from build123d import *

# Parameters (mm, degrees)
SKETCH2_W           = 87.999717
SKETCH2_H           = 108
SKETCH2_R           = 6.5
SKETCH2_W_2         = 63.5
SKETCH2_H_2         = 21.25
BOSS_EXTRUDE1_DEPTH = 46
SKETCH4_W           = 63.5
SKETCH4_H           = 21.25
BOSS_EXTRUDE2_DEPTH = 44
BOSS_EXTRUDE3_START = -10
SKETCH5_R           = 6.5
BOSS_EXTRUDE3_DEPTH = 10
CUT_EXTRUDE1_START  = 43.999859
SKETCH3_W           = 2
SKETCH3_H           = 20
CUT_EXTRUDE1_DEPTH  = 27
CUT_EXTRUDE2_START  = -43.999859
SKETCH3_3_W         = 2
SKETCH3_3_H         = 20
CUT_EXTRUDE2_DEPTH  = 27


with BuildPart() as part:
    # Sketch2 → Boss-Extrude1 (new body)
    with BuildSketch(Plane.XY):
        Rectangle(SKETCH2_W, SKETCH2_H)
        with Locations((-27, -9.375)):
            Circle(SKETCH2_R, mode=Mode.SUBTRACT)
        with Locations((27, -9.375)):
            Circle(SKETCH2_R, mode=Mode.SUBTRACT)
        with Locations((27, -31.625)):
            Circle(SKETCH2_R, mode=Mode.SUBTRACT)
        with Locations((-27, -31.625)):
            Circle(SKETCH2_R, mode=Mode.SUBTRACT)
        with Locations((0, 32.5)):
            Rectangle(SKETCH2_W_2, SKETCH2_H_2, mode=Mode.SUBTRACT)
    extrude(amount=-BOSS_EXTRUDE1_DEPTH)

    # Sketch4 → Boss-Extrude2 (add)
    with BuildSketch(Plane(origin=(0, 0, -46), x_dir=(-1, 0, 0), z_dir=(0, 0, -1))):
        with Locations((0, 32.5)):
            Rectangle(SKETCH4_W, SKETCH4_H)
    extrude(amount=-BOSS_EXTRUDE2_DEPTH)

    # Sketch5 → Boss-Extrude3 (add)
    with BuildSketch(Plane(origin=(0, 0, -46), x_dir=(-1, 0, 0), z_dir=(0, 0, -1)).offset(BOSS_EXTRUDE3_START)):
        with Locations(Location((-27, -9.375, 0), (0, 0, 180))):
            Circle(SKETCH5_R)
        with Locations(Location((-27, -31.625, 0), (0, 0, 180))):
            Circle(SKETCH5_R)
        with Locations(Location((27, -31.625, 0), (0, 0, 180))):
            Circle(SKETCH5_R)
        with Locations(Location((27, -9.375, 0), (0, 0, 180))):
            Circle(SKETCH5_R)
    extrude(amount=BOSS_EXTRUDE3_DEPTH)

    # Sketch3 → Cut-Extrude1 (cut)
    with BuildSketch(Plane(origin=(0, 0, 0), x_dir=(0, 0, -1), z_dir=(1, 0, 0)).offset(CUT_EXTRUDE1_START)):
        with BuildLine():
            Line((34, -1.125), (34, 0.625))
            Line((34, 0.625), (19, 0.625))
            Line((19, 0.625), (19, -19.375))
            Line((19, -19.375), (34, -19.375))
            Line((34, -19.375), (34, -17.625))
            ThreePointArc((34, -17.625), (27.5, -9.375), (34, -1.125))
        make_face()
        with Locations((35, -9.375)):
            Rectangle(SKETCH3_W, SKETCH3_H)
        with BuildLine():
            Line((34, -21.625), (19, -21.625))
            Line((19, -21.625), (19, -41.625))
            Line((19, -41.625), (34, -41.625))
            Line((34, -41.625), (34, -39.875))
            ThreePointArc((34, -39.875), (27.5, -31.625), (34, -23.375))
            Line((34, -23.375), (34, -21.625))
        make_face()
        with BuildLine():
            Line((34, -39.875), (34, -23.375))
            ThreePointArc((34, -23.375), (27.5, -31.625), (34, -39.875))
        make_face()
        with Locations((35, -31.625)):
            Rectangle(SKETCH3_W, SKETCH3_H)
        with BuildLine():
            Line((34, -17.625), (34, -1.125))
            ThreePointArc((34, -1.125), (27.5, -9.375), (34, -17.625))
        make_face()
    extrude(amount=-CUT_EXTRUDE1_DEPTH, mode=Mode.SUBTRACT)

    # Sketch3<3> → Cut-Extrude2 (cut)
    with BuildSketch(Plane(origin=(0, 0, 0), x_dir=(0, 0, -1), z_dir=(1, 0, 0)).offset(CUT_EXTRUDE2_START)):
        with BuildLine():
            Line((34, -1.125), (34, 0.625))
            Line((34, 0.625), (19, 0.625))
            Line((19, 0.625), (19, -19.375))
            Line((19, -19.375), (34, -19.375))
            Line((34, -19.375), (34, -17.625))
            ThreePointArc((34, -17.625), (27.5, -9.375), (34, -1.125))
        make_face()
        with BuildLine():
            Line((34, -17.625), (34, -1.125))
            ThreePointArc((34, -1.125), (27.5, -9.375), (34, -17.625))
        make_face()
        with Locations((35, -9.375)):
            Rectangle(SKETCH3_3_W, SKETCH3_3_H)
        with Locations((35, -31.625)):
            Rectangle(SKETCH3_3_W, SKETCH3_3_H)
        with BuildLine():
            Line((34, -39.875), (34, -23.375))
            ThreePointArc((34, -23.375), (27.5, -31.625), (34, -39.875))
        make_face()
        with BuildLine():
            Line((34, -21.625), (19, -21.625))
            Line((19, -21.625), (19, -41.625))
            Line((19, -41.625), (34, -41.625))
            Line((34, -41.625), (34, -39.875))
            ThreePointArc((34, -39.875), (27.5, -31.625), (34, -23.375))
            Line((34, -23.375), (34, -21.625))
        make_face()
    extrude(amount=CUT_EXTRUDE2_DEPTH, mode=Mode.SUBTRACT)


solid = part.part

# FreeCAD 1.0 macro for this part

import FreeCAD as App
import Part
import Sketcher

doc = App.newDocument("Part")
body = doc.addObject("PartDesign::Body", "Body")

# Sketch on XY plane
sketch1 = body.newObject("Sketcher::SketchObject", "Sketch")
sketch1.AttachmentSupport = (doc.getObject("XY_Plane"), [""])
sketch1.MapMode = "FlatFace"
sketch1.addGeometry([
    Part.LineSegment(App.Vector(-44, 54, 0), App.Vector(-44, -54, 0)),  # 0
    Part.LineSegment(App.Vector(-44, -54, 0), App.Vector(44, -54, 0)),  # 1
    Part.LineSegment(App.Vector(44, -54, 0), App.Vector(44, 54, 0)),  # 2
    Part.LineSegment(App.Vector(44, 54, 0), App.Vector(-44, 54, 0)),  # 3
    Part.Circle(App.Vector(-27, -32, 0), App.Vector(0, 0, 1), 6),  # 4
    Part.Circle(App.Vector(-27, -9, 0), App.Vector(0, 0, 1), 6),  # 5
    Part.Circle(App.Vector(27, -32, 0), App.Vector(0, 0, 1), 6),  # 6
    Part.Circle(App.Vector(27, -9, 0), App.Vector(0, 0, 1), 6),  # 7
    Part.LineSegment(App.Vector(32, 22, 0), App.Vector(-32, 22, 0)),  # 8
    Part.LineSegment(App.Vector(-32, 22, 0), App.Vector(-32, 43, 0)),  # 9
    Part.LineSegment(App.Vector(-32, 43, 0), App.Vector(32, 43, 0)),  # 10
    Part.LineSegment(App.Vector(32, 43, 0), App.Vector(32, 22, 0)),  # 11
], False)
sketch1.addConstraint([
    Sketcher.Constraint("Coincident", 0, 2, 1, 1),
    Sketcher.Constraint("Coincident", 1, 2, 2, 1),
    Sketcher.Constraint("Coincident", 2, 2, 3, 1),
    Sketcher.Constraint("Coincident", 3, 2, 0, 1),
    Sketcher.Constraint("Coincident", 8, 2, 9, 1),
    Sketcher.Constraint("Coincident", 9, 2, 10, 1),
    Sketcher.Constraint("Coincident", 10, 2, 11, 1),
    Sketcher.Constraint("Coincident", 11, 2, 8, 1),
    Sketcher.Constraint("Vertical", 0),
    Sketcher.Constraint("Horizontal", 1),
    Sketcher.Constraint("Vertical", 2),
    Sketcher.Constraint("Horizontal", 3),
    Sketcher.Constraint("Horizontal", 8),
    Sketcher.Constraint("Vertical", 9),
    Sketcher.Constraint("Horizontal", 10),
    Sketcher.Constraint("Vertical", 11),
    Sketcher.Constraint("Equal", 4, 5),
    Sketcher.Constraint("Equal", 5, 6),
    Sketcher.Constraint("Equal", 6, 7),
    Sketcher.Constraint("Symmetric", 0, 2, 2, 2, -1, 1),
    Sketcher.Constraint("Symmetric", 4, 3, 6, 3, -2),
    Sketcher.Constraint("Symmetric", 5, 3, 7, 3, -2),
    Sketcher.Constraint("Vertical", 4, 3, 5, 3),
    Sketcher.Constraint("Diameter", 4, 13.0),
    Sketcher.Constraint("DistanceY", 0, 2, 0, 1, 108.0),
    Sketcher.Constraint("DistanceX", 8, 2, 8, 1, 63.5),
    Sketcher.Constraint("DistanceX", 4, 3, -1, 1, 27.0),
    Sketcher.Constraint("DistanceY", 9, 1, 9, 2, 21.25),
    Sketcher.Constraint("DistanceY", 4, 3, 8, 2, 53.5),
    Sketcher.Constraint("DistanceY", 5, 3, 9, 2, 52.5),
    Sketcher.Constraint("DistanceX", 8, 2, -1, 1, 31.75),
    Sketcher.Constraint("DistanceY", 4, 3, -1, 1, 31.625),
    Sketcher.Constraint("DistanceX", 1, 1, 1, 2, 87.999717),
])
pad1 = body.newObject("PartDesign::Pad", "Pad")
pad1.Profile = sketch1
pad1.Length = 46
pad1.Reversed = True

# Sketch on XY plane
sketch2 = body.newObject("Sketcher::SketchObject", "Sketch001")
sketch2.AttachmentSupport = (doc.getObject("XY_Plane"), [""])
sketch2.MapMode = "FlatFace"
sketch2.AttachmentOffset = App.Placement(App.Vector(0, 0, -46), App.Rotation())
sketch2.addGeometry([
    Part.LineSegment(App.Vector(32, 43, 0), App.Vector(32, 22, 0)),
    Part.LineSegment(App.Vector(32, 22, 0), App.Vector(-32, 22, 0)),
    Part.LineSegment(App.Vector(-32, 22, 0), App.Vector(-32, 43, 0)),
    Part.LineSegment(App.Vector(-32, 43, 0), App.Vector(32, 43, 0)),
], False)
sketch2.addConstraint([
    Sketcher.Constraint("Coincident", 0, 2, 1, 1),
    Sketcher.Constraint("Coincident", 1, 2, 2, 1),
    Sketcher.Constraint("Coincident", 2, 2, 3, 1),
    Sketcher.Constraint("Coincident", 3, 2, 0, 1),
    Sketcher.Constraint("Vertical", 0),
    Sketcher.Constraint("Horizontal", 1),
    Sketcher.Constraint("Vertical", 2),
    Sketcher.Constraint("Horizontal", 3),
    Sketcher.Constraint("DistanceX", 1, 2, 1, 1, 63.5),
    Sketcher.Constraint("DistanceY", 0, 2, 0, 1, 21.25),
    Sketcher.Constraint("DistanceX", -1, 1, 0, 2, 31.75),
    Sketcher.Constraint("DistanceY", -1, 1, 0, 2, 21.875),
])
pad2 = body.newObject("PartDesign::Pad", "Pad001")
pad2.Profile = sketch2
pad2.Length = 44

# Sketch on XY plane
sketch3 = body.newObject("Sketcher::SketchObject", "Sketch002")
sketch3.AttachmentSupport = (doc.getObject("XY_Plane"), [""])
sketch3.MapMode = "FlatFace"
sketch3.AttachmentOffset = App.Placement(App.Vector(0, 0, -36), App.Rotation())
sketch3.addGeometry([
    Part.Circle(App.Vector(27, -9, 0), App.Vector(0, 0, 1), 6),
    Part.Circle(App.Vector(27, -32, 0), App.Vector(0, 0, 1), 6),
    Part.Circle(App.Vector(-27, -32, 0), App.Vector(0, 0, 1), 6),
    Part.Circle(App.Vector(-27, -9, 0), App.Vector(0, 0, 1), 6),
], False)
sketch3.addConstraint([
    Sketcher.Constraint("Equal", 0, 1),
    Sketcher.Constraint("Equal", 1, 2),
    Sketcher.Constraint("Equal", 2, 3),
    Sketcher.Constraint("Symmetric", 1, 3, 2, 3, -2),
    Sketcher.Constraint("Symmetric", 0, 3, 3, 3, -2),
    Sketcher.Constraint("Vertical", 0, 3, 1, 3),
    Sketcher.Constraint("Diameter", 0, 13.0),
    Sketcher.Constraint("DistanceX", -1, 1, 0, 3, 27.0),
    Sketcher.Constraint("DistanceY", 1, 3, 0, 3, 22.25),
    Sketcher.Constraint("DistanceY", 0, 3, -1, 1, 9.375),
])
pad3 = body.newObject("PartDesign::Pad", "Pad002")
pad3.Profile = sketch3
pad3.Length = 10
pad3.Reversed = True

# Sketch on YZ plane
sketch4 = body.newObject("Sketcher::SketchObject", "Sketch003")
sketch4.AttachmentSupport = (doc.getObject("YZ_Plane"), [""])
sketch4.MapMode = "FlatFace"
sketch4.AttachmentOffset = App.Placement(App.Vector(0, 0, 43.999859), App.Rotation())
sketch4.addGeometry([
    Part.LineSegment(App.Vector(1, -19, 0), App.Vector(-19, -19, 0)),  # 0
    Part.LineSegment(App.Vector(-19, -19, 0), App.Vector(-19, -36, 0)),  # 1
    Part.LineSegment(App.Vector(-19, -36, 0), App.Vector(1, -36, 0)),  # 2
    Part.LineSegment(App.Vector(1, -36, 0), App.Vector(1, -19, 0)),  # 3
    Part.LineSegment(App.Vector(-22, -19, 0), App.Vector(-42, -19, 0)),  # 4
    Part.LineSegment(App.Vector(-42, -19, 0), App.Vector(-42, -36, 0)),  # 5
    Part.LineSegment(App.Vector(-42, -36, 0), App.Vector(-22, -36, 0)),  # 6
    Part.LineSegment(App.Vector(-22, -36, 0), App.Vector(-22, -19, 0)),  # 7
], False)
sketch4.addConstraint([
    Sketcher.Constraint("Coincident", 0, 2, 1, 1),
    Sketcher.Constraint("Coincident", 1, 2, 2, 1),
    Sketcher.Constraint("Coincident", 2, 2, 3, 1),
    Sketcher.Constraint("Coincident", 3, 2, 0, 1),
    Sketcher.Constraint("Coincident", 4, 2, 5, 1),
    Sketcher.Constraint("Coincident", 5, 2, 6, 1),
    Sketcher.Constraint("Coincident", 6, 2, 7, 1),
    Sketcher.Constraint("Coincident", 7, 2, 4, 1),
    Sketcher.Constraint("Horizontal", 0),
    Sketcher.Constraint("Vertical", 1),
    Sketcher.Constraint("Horizontal", 2),
    Sketcher.Constraint("Vertical", 3),
    Sketcher.Constraint("Horizontal", 4),
    Sketcher.Constraint("Vertical", 5),
    Sketcher.Constraint("Horizontal", 6),
    Sketcher.Constraint("Vertical", 7),
    Sketcher.Constraint("Horizontal", 3, 2, 4, 2),
    Sketcher.Constraint("Horizontal", 2, 2, 5, 2),
    Sketcher.Constraint("Equal", 2, 4),
    Sketcher.Constraint("DistanceX", 0, 2, 0, 1, 20.0),
    Sketcher.Constraint("DistanceY", 1, 2, 1, 1, 17.0),
    Sketcher.Constraint("DistanceY", 0, 2, -1, 1, 19.0),
    Sketcher.Constraint("DistanceX", 4, 2, 0, 2, 22.25),
    Sketcher.Constraint("DistanceX", 0, 2, -1, 1, 19.375),
])
pocket1 = body.newObject("PartDesign::Pocket", "Pocket")
pocket1.Profile = sketch4
pocket1.Length = 27

# Sketch on YZ plane
sketch5 = body.newObject("Sketcher::SketchObject", "Sketch004")
sketch5.AttachmentSupport = (doc.getObject("YZ_Plane"), [""])
sketch5.MapMode = "FlatFace"
sketch5.AttachmentOffset = App.Placement(App.Vector(0, 0, -43.999859), App.Rotation())
sketch5.addGeometry([
    Part.LineSegment(App.Vector(1, -19, 0), App.Vector(-19, -19, 0)),  # 0
    Part.LineSegment(App.Vector(-19, -19, 0), App.Vector(-19, -36, 0)),  # 1
    Part.LineSegment(App.Vector(-19, -36, 0), App.Vector(1, -36, 0)),  # 2
    Part.LineSegment(App.Vector(1, -36, 0), App.Vector(1, -19, 0)),  # 3
    Part.LineSegment(App.Vector(-42, -36, 0), App.Vector(-22, -36, 0)),  # 4
    Part.LineSegment(App.Vector(-22, -36, 0), App.Vector(-22, -19, 0)),  # 5
    Part.LineSegment(App.Vector(-22, -19, 0), App.Vector(-42, -19, 0)),  # 6
    Part.LineSegment(App.Vector(-42, -19, 0), App.Vector(-42, -36, 0)),  # 7
], False)
sketch5.addConstraint([
    Sketcher.Constraint("Coincident", 0, 2, 1, 1),
    Sketcher.Constraint("Coincident", 1, 2, 2, 1),
    Sketcher.Constraint("Coincident", 2, 2, 3, 1),
    Sketcher.Constraint("Coincident", 3, 2, 0, 1),
    Sketcher.Constraint("Coincident", 4, 2, 5, 1),
    Sketcher.Constraint("Coincident", 5, 2, 6, 1),
    Sketcher.Constraint("Coincident", 6, 2, 7, 1),
    Sketcher.Constraint("Coincident", 7, 2, 4, 1),
    Sketcher.Constraint("Horizontal", 0),
    Sketcher.Constraint("Vertical", 1),
    Sketcher.Constraint("Horizontal", 2),
    Sketcher.Constraint("Vertical", 3),
    Sketcher.Constraint("Horizontal", 4),
    Sketcher.Constraint("Vertical", 5),
    Sketcher.Constraint("Horizontal", 6),
    Sketcher.Constraint("Vertical", 7),
    Sketcher.Constraint("Horizontal", 2, 2, 4, 2),
    Sketcher.Constraint("Horizontal", 3, 2, 5, 2),
    Sketcher.Constraint("Equal", 2, 4),
    Sketcher.Constraint("DistanceX", 0, 2, 0, 1, 20.0),
    Sketcher.Constraint("DistanceY", 1, 2, 1, 1, 17.0),
    Sketcher.Constraint("DistanceY", 0, 2, -1, 1, 19.0),
    Sketcher.Constraint("DistanceX", 4, 2, 1, 2, 2.25),
    Sketcher.Constraint("DistanceX", 0, 2, -1, 1, 19.375),
])
pocket2 = body.newObject("PartDesign::Pocket", "Pocket001")
pocket2.Profile = sketch5
pocket2.Length = 27
pocket2.Reversed = True

doc.recompute()
